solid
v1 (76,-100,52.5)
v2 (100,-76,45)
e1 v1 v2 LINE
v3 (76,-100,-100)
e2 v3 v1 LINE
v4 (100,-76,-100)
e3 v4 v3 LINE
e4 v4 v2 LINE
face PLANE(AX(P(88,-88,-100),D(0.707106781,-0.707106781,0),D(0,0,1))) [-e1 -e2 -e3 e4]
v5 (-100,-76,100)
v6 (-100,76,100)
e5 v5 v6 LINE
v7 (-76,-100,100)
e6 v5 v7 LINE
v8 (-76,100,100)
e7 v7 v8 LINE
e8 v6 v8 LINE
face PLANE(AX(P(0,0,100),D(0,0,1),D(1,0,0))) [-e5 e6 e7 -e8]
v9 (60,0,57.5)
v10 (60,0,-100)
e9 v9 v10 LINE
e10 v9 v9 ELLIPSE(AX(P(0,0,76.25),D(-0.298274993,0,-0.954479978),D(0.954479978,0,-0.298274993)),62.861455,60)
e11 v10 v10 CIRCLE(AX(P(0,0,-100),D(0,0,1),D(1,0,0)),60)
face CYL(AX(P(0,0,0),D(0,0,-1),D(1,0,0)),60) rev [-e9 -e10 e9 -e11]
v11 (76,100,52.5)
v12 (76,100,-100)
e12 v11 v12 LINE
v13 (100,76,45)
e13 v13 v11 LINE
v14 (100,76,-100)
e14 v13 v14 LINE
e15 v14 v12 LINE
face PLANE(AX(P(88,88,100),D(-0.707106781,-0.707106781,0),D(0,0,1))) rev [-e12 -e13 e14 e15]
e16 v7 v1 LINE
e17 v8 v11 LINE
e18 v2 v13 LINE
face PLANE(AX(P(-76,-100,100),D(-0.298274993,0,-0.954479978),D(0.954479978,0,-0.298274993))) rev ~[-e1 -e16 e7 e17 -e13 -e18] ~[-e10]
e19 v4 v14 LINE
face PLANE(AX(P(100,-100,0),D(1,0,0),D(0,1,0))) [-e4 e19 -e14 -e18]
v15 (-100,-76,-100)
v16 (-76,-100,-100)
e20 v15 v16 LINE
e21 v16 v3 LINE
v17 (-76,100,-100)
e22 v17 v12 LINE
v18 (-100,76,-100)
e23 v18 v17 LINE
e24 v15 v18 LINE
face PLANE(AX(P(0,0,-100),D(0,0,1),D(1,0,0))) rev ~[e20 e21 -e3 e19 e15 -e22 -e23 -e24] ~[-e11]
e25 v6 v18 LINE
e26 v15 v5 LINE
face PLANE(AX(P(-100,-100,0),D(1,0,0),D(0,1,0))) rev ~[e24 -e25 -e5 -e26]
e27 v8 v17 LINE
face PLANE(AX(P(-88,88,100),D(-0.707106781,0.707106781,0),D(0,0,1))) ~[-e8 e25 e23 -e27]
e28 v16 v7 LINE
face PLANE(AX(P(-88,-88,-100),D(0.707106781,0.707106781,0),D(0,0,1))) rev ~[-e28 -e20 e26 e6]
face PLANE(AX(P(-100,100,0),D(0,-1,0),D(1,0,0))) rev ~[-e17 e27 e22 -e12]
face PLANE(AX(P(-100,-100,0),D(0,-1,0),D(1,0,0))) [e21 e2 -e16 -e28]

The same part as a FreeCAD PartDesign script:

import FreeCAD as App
import Part
import Sketcher
from FreeCAD import Vector


def edges_at(feature, points):
    """Names of the edges that pass closest to the given points."""
    edges = feature.Shape.Edges
    near = lambda p: min(range(len(edges)), key=lambda i: edges[i].distToShape(Part.Vertex(*p))[0])
    return sorted({f"Edge{near(p) + 1}" for p in points})

doc = App.newDocument("Part")
body = doc.addObject("PartDesign::Body", "Body")

sketch1 = doc.addObject("Sketcher::SketchObject", "Sketch")
body.addObject(sketch1)
sketch1.AttachmentSupport = (doc.XY_Plane, [""])
sketch1.MapMode = "FlatFace"
sketch1.addGeometry(Part.LineSegment(Vector(-100, 100, 0), Vector(-100, -100, 0)), False)
sketch1.addGeometry(Part.LineSegment(Vector(-100, -100, 0), Vector(100, -100, 0)), False)
sketch1.addGeometry(Part.LineSegment(Vector(100, -100, 0), Vector(100, 100, 0)), False)
sketch1.addGeometry(Part.LineSegment(Vector(100, 100, 0), Vector(-100, 100, 0)), False)
sketch1.addGeometry(Part.Circle(Vector(0, 0, 0), Vector(0, 0, 1), 60), False)
sketch1.addConstraint(Sketcher.Constraint("Coincident", 0, 2, 1, 1))
sketch1.addConstraint(Sketcher.Constraint("Coincident", 1, 2, 2, 1))
sketch1.addConstraint(Sketcher.Constraint("Coincident", 2, 2, 3, 1))
sketch1.addConstraint(Sketcher.Constraint("Coincident", 3, 2, 0, 1))
sketch1.addConstraint(Sketcher.Constraint("Vertical", 0))
sketch1.addConstraint(Sketcher.Constraint("Horizontal", 1))
sketch1.addConstraint(Sketcher.Constraint("Vertical", 2))
sketch1.addConstraint(Sketcher.Constraint("Horizontal", 3))
sketch1.addConstraint(Sketcher.Constraint("Coincident", 4, 3, -1, 1))
sketch1.addConstraint(Sketcher.Constraint("Symmetric", 0, 2, 2, 2, -1, 1))
sketch1.addConstraint(Sketcher.Constraint("Equal", 3, 0))
sketch1.addConstraint(Sketcher.Constraint("Diameter", 4, 120.0))
sketch1.addConstraint(Sketcher.Constraint("DistanceX", 1, 1, 1, 2, 200.0))
pad1 = doc.addObject("PartDesign::Pad", "Pad")
body.addObject(pad1)
pad1.Profile = sketch1
pad1.Length = 200
pad1.Midplane = True
doc.recompute()

chamfer = doc.addObject("PartDesign::Chamfer", "Chamfer")
body.addObject(chamfer)
chamfer.Base = (pad1, edges_at(pad1, [
    (-100, -100, 0),
    (100, -100, 0),
    (100, 100, 0),
    (-100, 100, 0),
]))
chamfer.Size = 24

sketch2 = doc.addObject("Sketcher::SketchObject", "Sketch001")
body.addObject(sketch2)
sketch2.AttachmentSupport = (doc.XZ_Plane, [""])
sketch2.MapMode = "FlatFace"
sketch2.AttachmentOffset = App.Placement(Vector(0, 0, 100), App.Rotation())
sketch2.addGeometry(Part.LineSegment(Vector(100, 45, 0), Vector(100, 100, 0)), False)
sketch2.addGeometry(Part.LineSegment(Vector(100, 100, 0), Vector(-76, 100, 0)), False)
sketch2.addGeometry(Part.LineSegment(Vector(-76, 100, 0), Vector(100, 45, 0)), False)
sketch2.addConstraint(Sketcher.Constraint("Coincident", 0, 2, 1, 1))
sketch2.addConstraint(Sketcher.Constraint("Coincident", 1, 2, 2, 1))
sketch2.addConstraint(Sketcher.Constraint("Coincident", 2, 2, 0, 1))
sketch2.addConstraint(Sketcher.Constraint("Vertical", 0))
sketch2.addConstraint(Sketcher.Constraint("Horizontal", 1))
sketch2.addConstraint(Sketcher.Constraint("DistanceX", 1, 2, 1, 1, 176.0))
sketch2.addConstraint(Sketcher.Constraint("DistanceY", 0, 1, 0, 2, 55.0))
sketch2.addConstraint(Sketcher.Constraint("DistanceX", -1, 1, 0, 2, 100.0))
sketch2.addConstraint(Sketcher.Constraint("DistanceY", -1, 1, 0, 2, 100.0))
pocket1 = doc.addObject("PartDesign::Pocket", "Pocket")
body.addObject(pocket1)
pocket1.Profile = sketch2
pocket1.Length = 200

doc.recompute()
